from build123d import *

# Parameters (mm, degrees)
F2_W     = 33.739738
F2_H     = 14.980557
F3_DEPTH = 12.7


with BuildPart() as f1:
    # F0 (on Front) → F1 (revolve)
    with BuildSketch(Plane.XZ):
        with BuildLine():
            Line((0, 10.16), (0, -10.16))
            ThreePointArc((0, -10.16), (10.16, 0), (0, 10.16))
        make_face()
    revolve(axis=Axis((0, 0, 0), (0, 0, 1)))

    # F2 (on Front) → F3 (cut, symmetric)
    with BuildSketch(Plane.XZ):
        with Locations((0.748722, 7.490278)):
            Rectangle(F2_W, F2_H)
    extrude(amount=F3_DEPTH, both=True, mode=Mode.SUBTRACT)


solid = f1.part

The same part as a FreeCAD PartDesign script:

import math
import FreeCAD as App
import Part
import Sketcher
from FreeCAD import Vector
Q = App.Units.Quantity


def add_polygon(sketch, points):
    """Adds a closed chain of lines whose ends are joined by coincident constraints."""
    first, n = sketch.GeometryCount, len(points)
    for a, b in zip(points, points[1:] + points[:1]):
        sketch.addGeometry(Part.LineSegment(App.Vector(*a, 0), App.Vector(*b, 0)), False)
    for i in range(n):
        sketch.addConstraint(Sketcher.Constraint("Coincident", first + i, 2, first + (i + 1) % n, 1))

doc = App.newDocument("Part")
params = doc.addObject("Spreadsheet::Sheet", "Params")
for row, (alias, value) in enumerate([
    ("sketch1_radius", "0.4 in"),
    ("revolution_angle", "360 deg"),
    ("pocket1_length", "1 in"),
], start=1):
    params.set(f"A{row}", alias)
    params.set(f"B{row}", "=" + value)
    params.setAlias(f"B{row}", alias)

body = doc.addObject("PartDesign::Body", "Body")

sketch1 = body.newObject("Sketcher::SketchObject", "Sketch")
sketch1.AttachmentSupport = (doc.getObject("XZ_Plane"), [""])
sketch1.MapMode = "FlatFace"
sketch1.addGeometry(Part.LineSegment(Vector(0, 10, 0), Vector(0, -10, 0)), False)
sketch1.addGeometry(Part.ArcOfCircle(Part.Circle(Vector(0, 0, 0), Vector(0, 0, 1), 10), math.radians(-90), math.radians(90)), False)
sketch1.addConstraint(Sketcher.Constraint("Coincident", 0, 1, 1, 2))
sketch1.addConstraint(Sketcher.Constraint("Coincident", 1, 1, 0, 2))
sketch1.addConstraint(Sketcher.Constraint("Vertical", 0))
sketch1.addConstraint(Sketcher.Constraint("Coincident", 1, 3, -1, 1))
sketch1.addConstraint(Sketcher.Constraint("PointOnObject", 0, 1, -2))
sketch1.addConstraint(Sketcher.Constraint("Radius", 1, Q("0.4 in")))
sketch1.setExpression("Constraints[5]", "Params.sketch1_radius")
revolution = body.newObject("PartDesign::Revolution", "Revolution")
revolution.Profile = sketch1
revolution.ReferenceAxis = (sketch1, ["V_Axis"])
revolution.setExpression("Angle", "Params.revolution_angle")

sketch2 = body.newObject("Sketcher::SketchObject", "Sketch001")
sketch2.AttachmentSupport = (doc.getObject("XZ_Plane"), [""])
sketch2.MapMode = "FlatFace"
add_polygon(sketch2, [(-16, 15), (-16, 0), (18, 0), (18, 15)])
sketch2.addConstraint(Sketcher.Constraint("Vertical", 0))
sketch2.addConstraint(Sketcher.Constraint("Horizontal", 1))
sketch2.addConstraint(Sketcher.Constraint("Vertical", 2))
sketch2.addConstraint(Sketcher.Constraint("Horizontal", 3))
sketch2.addConstraint(Sketcher.Constraint("PointOnObject", 0, 2, -1))
sketch2.addConstraint(Sketcher.Constraint("DistanceX", 1, 1, 1, 2, 33.739738))
sketch2.addConstraint(Sketcher.Constraint("DistanceY", 0, 2, 0, 1, 14.980557))
sketch2.addConstraint(Sketcher.Constraint("DistanceX", -1, 1, 1, 2, 17.618591))
pocket1 = body.newObject("PartDesign::Pocket", "Pocket")
pocket1.Profile = sketch2
pocket1.setExpression("Length", "Params.pocket1_length")
pocket1.Midplane = True

doc.recompute()
